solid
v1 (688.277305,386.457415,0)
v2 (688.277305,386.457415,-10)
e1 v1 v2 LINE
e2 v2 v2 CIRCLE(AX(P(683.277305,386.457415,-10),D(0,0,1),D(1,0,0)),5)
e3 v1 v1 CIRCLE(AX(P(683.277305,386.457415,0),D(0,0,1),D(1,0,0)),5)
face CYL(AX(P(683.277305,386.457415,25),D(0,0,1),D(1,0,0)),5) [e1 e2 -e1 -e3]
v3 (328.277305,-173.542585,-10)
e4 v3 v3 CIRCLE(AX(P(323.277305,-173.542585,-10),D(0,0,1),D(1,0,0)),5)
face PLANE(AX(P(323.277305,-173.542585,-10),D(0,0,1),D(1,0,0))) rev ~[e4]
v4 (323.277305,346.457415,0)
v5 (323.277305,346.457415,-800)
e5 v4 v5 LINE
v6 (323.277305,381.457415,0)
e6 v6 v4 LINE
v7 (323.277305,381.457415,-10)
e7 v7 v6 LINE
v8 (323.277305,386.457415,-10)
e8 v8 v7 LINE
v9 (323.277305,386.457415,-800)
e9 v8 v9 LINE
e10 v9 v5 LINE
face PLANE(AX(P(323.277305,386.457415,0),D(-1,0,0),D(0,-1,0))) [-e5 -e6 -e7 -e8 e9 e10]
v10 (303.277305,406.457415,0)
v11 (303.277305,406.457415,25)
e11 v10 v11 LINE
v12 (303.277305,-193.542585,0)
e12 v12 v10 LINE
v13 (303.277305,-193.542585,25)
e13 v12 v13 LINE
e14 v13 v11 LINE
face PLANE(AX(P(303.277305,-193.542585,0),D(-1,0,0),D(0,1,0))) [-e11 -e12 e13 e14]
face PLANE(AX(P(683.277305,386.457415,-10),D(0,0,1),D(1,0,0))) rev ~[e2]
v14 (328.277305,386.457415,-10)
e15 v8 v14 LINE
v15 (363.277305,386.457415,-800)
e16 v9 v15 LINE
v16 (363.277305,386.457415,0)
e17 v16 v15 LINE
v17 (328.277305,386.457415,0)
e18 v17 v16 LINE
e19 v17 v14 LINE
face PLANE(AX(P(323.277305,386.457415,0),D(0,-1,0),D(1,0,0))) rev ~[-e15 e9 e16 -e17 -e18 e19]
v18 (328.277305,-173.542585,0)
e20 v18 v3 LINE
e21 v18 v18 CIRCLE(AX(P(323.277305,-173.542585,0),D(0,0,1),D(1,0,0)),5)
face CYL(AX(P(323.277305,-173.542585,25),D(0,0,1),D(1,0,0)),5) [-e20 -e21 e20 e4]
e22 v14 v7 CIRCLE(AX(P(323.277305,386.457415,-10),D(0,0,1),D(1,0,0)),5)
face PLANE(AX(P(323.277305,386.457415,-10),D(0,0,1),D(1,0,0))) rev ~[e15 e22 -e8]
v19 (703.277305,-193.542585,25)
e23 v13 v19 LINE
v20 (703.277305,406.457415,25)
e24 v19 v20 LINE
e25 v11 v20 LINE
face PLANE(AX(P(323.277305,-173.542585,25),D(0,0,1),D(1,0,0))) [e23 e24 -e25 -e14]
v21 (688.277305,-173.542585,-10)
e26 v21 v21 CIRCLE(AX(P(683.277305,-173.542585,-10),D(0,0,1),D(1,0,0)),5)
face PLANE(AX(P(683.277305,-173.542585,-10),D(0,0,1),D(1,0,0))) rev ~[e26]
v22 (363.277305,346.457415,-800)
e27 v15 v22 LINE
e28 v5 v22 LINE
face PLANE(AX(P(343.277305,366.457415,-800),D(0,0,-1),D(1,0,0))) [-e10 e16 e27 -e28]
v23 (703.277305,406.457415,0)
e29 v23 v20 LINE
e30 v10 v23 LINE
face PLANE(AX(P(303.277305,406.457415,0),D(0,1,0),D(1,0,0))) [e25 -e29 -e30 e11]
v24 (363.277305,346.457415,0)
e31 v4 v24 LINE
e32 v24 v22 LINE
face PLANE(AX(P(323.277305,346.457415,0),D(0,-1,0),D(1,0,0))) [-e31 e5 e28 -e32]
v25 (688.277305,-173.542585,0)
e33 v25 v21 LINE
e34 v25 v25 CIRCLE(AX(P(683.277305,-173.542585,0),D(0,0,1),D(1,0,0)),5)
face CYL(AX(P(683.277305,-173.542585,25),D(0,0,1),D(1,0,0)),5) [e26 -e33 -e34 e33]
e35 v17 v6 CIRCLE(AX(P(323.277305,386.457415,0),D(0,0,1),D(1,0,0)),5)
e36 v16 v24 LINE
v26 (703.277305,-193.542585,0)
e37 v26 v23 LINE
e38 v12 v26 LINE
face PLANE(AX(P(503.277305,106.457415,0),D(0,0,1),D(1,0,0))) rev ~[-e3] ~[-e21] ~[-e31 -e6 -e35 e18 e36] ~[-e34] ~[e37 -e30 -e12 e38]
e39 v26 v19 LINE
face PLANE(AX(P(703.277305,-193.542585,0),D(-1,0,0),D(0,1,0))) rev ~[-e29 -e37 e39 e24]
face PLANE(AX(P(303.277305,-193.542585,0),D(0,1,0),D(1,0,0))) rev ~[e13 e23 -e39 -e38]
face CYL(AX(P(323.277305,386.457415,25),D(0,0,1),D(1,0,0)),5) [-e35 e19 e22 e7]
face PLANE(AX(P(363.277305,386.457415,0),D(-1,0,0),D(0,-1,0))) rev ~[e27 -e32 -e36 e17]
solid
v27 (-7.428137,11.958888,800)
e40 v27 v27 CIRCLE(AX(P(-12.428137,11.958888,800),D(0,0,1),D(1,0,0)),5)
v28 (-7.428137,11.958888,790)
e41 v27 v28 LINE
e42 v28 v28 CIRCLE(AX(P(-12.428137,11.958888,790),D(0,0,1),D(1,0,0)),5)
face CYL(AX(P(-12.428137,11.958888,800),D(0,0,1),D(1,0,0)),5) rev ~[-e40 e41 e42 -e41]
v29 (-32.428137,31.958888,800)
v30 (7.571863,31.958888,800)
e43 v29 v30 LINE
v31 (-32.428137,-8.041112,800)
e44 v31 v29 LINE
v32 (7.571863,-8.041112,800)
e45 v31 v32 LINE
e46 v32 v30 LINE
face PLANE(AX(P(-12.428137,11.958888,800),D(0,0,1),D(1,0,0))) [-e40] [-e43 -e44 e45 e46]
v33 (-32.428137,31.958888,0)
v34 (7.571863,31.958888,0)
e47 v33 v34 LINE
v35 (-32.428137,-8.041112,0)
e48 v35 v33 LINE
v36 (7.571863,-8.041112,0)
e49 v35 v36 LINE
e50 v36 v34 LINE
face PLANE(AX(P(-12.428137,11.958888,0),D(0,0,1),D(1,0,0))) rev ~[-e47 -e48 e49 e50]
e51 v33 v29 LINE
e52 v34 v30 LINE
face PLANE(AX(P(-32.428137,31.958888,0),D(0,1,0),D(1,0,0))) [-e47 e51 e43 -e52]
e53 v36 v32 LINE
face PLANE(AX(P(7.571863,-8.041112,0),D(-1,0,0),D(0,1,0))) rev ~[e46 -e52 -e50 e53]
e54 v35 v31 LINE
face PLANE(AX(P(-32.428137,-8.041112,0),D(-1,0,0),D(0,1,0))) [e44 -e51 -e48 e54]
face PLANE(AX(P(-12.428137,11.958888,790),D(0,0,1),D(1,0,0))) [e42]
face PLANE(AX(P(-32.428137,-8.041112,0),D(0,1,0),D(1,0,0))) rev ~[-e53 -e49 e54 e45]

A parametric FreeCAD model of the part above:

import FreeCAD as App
import Part
import Sketcher
Q = App.Units.Quantity


def add_polygon(sketch, points):
    """Adds a closed chain of lines whose ends are joined by coincident constraints."""
    first, n = sketch.GeometryCount, len(points)
    for a, b in zip(points, points[1:] + points[:1]):
        sketch.addGeometry(Part.LineSegment(App.Vector(*a, 0), App.Vector(*b, 0)), False)
    for i in range(n):
        sketch.addConstraint(Sketcher.Constraint("Coincident", first + i, 2, first + (i + 1) % n, 1))

doc = App.newDocument("Part")
body = doc.addObject("PartDesign::Body", "Body")

# Sketch on XY plane
sketch1 = body.newObject("Sketcher::SketchObject", "Sketch")
sketch1.AttachmentSupport = (doc.getObject("XY_Plane"), [""])
sketch1.MapMode = "FlatFace"
add_polygon(sketch1, [(-32, 32), (-32, -8), (8, -8), (8, 32)])  # lines 0-3
sketch1.addConstraint([
    Sketcher.Constraint("Vertical", 0),
    Sketcher.Constraint("Horizontal", 1),
    Sketcher.Constraint("Vertical", 2),
    Sketcher.Constraint("Horizontal", 3),
    Sketcher.Constraint("Equal", 3, 0),
    Sketcher.Constraint("DistanceX", 1, 1, 1, 2, Q("40 mm")),
    Sketcher.Constraint("DistanceY", -1, 1, 2, 2, Q("31.958888 mm")),
    Sketcher.Constraint("DistanceX", 0, 2, -1, 1, Q("32.428137 mm")),
])
pad1 = body.newObject("PartDesign::Pad", "Pad")
pad1.Profile = sketch1
pad1.Length = 800

# Sketch on XY plane
sketch2 = body.newObject("Sketcher::SketchObject", "Sketch001")
sketch2.AttachmentSupport = (doc.getObject("XY_Plane"), [""])
sketch2.MapMode = "FlatFace"
sketch2.AttachmentOffset = App.Placement(App.Vector(0, 0, 800), App.Rotation())
sketch2.addGeometry(Part.Circle(App.Vector(-12, 12, 0), App.Vector(0, 0, 1), 5), False)
sketch2.addConstraint([
    Sketcher.Constraint("Diameter", 0, Q("10 mm")),
    Sketcher.Constraint("DistanceX", 0, 3, -1, 1, Q("12.428137 mm")),
    Sketcher.Constraint("DistanceY", -1, 1, 0, 3, Q("11.958888 mm")),
])
pocket1 = body.newObject("PartDesign::Pocket", "Pocket")
pocket1.Profile = sketch2
pocket1.Length = 10
body2 = doc.addObject("PartDesign::Body", "Body001")

# Sketch on XY plane
sketch3 = body2.newObject("Sketcher::SketchObject", "Sketch002")
sketch3.AttachmentSupport = (doc.getObject("XY_Plane001"), [""])
sketch3.MapMode = "FlatFace"
add_polygon(sketch3, [(303, 406), (303, -194), (703, -194), (703, 406)])  # lines 0-3
sketch3.addConstraint([
    Sketcher.Constraint("Vertical", 0),
    Sketcher.Constraint("Horizontal", 1),
    Sketcher.Constraint("Vertical", 2),
    Sketcher.Constraint("Horizontal", 3),
    Sketcher.Constraint("DistanceX", 1, 1, 1, 2, Q("400 mm")),
    Sketcher.Constraint("DistanceY", 0, 2, 0, 1, Q("600 mm")),
    Sketcher.Constraint("DistanceX", -1, 1, 0, 2, Q("303.277305 mm")),
    Sketcher.Constraint("DistanceY", 0, 2, -1, 1, Q("193.542585 mm")),
])
pad2 = body2.newObject("PartDesign::Pad", "Pad001")
pad2.Profile = sketch3
pad2.Length = 25

# Sketch on XY plane
sketch4 = body2.newObject("Sketcher::SketchObject", "Sketch003")
sketch4.AttachmentSupport = (doc.getObject("XY_Plane001"), [""])
sketch4.MapMode = "FlatFace"
sketch4.AttachmentOffset = App.Placement(App.Vector(0, 0, 25), App.Rotation())
sketch4.addGeometry([
    Part.Circle(App.Vector(323, -174, 0), App.Vector(0, 0, 1), 5),
    Part.Circle(App.Vector(683, -174, 0), App.Vector(0, 0, 1), 5),
    Part.Circle(App.Vector(323, 386, 0), App.Vector(0, 0, 1), 5),
    Part.Circle(App.Vector(683, 386, 0), App.Vector(0, 0, 1), 5),
], False)
sketch4.addConstraint([
    Sketcher.Constraint("Equal", 0, 1),
    Sketcher.Constraint("Equal", 1, 2),
    Sketcher.Constraint("Equal", 2, 3),
    Sketcher.Constraint("Horizontal", 0, 3, 1, 3),
    Sketcher.Constraint("Horizontal", 2, 3, 3, 3),
    Sketcher.Constraint("Vertical", 0, 3, 2, 3),
    Sketcher.Constraint("Vertical", 1, 3, 3, 3),
    Sketcher.Constraint("Diameter", 0, Q("10 mm")),
    Sketcher.Constraint("DistanceX", 0, 3, 1, 3, Q("360 mm")),
    Sketcher.Constraint("DistanceY", 0, 3, 2, 3, Q("560 mm")),
    Sketcher.Constraint("DistanceX", -1, 1, 0, 3, Q("323.277305 mm")),
    Sketcher.Constraint("DistanceY", 0, 3, -1, 1, Q("173.542585 mm")),
])
pad3 = body2.newObject("PartDesign::Pad", "Pad002")
pad3.Profile = sketch4
pad3.Length = 35
pad3.Reversed = True

# Sketch on XY plane
sketch5 = body2.newObject("Sketcher::SketchObject", "Sketch004")
sketch5.AttachmentSupport = (doc.getObject("XY_Plane001"), [""])
sketch5.MapMode = "FlatFace"
add_polygon(sketch5, [(323, 346), (323, 386), (363, 386), (363, 346)])  # lines 0-3
sketch5.addConstraint([
    Sketcher.Constraint("Vertical", 0),
    Sketcher.Constraint("Horizontal", 1),
    Sketcher.Constraint("Vertical", 2),
    Sketcher.Constraint("Horizontal", 3),
    Sketcher.Constraint("Equal", 3, 0),
    Sketcher.Constraint("DistanceX", 1, 1, 1, 2, Q("40 mm")),
    Sketcher.Constraint("DistanceX", -1, 1, 0, 2, Q("323.277305 mm")),
    Sketcher.Constraint("DistanceY", -1, 1, 0, 2, Q("386.457415 mm")),
])
pad4 = body2.newObject("PartDesign::Pad", "Pad003")
pad4.Profile = sketch5
pad4.Length = 800
pad4.Reversed = True

doc.recompute()
